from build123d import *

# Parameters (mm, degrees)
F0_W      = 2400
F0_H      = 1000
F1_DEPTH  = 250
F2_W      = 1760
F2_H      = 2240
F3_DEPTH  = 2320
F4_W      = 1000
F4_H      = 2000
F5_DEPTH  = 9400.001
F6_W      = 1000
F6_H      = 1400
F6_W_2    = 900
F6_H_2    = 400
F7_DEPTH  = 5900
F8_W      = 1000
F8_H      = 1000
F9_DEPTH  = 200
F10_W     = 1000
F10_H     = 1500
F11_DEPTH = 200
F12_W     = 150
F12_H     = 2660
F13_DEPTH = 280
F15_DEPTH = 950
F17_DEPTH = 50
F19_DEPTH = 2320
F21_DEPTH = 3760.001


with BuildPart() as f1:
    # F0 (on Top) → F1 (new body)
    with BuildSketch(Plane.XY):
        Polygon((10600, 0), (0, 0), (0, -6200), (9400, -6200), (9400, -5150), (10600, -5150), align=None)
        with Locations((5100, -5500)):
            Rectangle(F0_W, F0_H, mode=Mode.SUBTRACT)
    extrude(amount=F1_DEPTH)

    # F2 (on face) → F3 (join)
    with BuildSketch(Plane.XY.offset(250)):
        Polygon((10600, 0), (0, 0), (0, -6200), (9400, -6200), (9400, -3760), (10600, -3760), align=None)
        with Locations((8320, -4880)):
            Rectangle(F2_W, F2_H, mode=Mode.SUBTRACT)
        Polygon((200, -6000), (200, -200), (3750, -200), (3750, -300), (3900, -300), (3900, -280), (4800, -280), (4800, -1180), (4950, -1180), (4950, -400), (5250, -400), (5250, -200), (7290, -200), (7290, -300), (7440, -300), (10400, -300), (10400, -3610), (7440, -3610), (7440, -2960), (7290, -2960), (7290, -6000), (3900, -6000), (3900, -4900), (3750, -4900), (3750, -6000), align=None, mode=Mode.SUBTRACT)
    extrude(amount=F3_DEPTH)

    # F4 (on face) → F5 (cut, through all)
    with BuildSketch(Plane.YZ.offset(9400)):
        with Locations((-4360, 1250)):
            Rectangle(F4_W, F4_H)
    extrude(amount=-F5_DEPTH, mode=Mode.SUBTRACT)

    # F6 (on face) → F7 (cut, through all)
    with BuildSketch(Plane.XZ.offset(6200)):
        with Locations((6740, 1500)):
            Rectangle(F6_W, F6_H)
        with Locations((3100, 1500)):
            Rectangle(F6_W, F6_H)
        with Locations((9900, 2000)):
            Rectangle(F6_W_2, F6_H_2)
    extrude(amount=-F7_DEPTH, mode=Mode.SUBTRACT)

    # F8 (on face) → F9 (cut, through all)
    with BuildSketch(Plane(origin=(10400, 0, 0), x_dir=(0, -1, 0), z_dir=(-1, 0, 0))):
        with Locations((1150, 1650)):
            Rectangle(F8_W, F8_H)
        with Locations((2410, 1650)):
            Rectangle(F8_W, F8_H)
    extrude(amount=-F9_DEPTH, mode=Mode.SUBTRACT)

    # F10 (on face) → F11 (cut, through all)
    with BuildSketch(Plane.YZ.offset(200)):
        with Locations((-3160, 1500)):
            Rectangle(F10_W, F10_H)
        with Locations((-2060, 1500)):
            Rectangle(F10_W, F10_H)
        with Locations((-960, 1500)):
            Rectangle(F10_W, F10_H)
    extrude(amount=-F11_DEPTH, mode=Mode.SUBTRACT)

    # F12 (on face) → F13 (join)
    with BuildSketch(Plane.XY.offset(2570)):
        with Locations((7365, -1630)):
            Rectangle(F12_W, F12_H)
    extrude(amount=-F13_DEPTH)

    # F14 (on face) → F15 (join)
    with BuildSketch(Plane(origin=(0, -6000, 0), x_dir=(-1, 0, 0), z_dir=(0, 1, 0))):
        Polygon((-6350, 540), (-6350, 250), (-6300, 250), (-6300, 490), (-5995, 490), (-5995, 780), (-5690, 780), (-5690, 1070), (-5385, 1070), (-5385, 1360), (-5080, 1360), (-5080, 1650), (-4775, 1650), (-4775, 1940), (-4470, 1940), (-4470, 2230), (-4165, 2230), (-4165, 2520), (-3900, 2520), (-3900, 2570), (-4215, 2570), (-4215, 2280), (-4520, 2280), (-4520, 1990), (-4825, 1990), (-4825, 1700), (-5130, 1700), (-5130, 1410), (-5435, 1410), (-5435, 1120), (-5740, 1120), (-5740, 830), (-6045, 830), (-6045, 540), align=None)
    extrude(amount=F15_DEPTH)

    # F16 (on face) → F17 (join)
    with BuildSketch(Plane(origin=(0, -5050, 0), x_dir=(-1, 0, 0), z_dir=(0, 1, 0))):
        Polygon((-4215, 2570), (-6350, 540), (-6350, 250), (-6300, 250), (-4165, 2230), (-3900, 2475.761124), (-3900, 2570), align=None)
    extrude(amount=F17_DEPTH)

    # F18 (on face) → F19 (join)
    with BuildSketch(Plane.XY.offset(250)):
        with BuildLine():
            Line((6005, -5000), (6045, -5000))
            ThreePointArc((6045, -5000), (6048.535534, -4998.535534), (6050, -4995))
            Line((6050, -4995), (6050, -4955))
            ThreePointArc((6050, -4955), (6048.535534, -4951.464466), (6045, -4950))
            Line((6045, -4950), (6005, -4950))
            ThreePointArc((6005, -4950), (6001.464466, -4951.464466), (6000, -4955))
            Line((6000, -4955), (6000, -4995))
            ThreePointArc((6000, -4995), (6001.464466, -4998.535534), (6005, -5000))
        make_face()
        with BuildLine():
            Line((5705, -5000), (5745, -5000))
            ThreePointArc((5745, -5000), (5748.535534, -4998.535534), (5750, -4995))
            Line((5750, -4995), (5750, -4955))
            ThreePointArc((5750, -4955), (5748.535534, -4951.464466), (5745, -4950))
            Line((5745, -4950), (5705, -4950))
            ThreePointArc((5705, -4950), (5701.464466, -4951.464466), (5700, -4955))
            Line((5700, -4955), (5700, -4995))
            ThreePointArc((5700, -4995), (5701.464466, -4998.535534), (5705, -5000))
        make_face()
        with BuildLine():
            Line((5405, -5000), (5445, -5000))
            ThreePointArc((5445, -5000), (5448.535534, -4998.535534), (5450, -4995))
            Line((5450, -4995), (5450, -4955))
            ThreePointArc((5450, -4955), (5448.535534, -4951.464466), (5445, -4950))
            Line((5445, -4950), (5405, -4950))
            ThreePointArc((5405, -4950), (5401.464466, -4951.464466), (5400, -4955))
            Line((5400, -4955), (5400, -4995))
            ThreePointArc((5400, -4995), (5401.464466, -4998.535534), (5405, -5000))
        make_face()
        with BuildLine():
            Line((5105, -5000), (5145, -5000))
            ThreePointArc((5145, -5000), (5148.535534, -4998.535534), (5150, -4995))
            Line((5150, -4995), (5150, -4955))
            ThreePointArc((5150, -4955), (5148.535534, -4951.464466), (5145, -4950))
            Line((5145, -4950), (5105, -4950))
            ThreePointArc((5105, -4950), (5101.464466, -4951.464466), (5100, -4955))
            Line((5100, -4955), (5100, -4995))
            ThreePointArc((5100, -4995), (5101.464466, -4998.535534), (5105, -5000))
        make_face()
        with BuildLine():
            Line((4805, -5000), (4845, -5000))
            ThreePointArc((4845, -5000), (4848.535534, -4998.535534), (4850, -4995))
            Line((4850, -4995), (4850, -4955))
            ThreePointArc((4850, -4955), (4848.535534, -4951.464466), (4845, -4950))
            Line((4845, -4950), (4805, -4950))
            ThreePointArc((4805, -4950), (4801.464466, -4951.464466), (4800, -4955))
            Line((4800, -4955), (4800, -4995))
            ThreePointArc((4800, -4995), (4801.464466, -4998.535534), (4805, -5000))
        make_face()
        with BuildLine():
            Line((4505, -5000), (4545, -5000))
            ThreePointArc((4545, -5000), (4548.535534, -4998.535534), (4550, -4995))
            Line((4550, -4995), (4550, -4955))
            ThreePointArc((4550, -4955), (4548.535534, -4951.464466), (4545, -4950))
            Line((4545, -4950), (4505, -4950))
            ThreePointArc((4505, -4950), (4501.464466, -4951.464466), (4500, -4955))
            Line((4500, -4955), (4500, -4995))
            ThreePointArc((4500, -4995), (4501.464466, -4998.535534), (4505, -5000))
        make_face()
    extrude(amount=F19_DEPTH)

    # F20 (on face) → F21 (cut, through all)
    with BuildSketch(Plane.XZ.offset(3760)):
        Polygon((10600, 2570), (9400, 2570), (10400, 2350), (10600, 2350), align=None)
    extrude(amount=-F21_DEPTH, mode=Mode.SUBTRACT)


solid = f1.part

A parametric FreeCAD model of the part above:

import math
import FreeCAD as App
import Part
import Sketcher

V = App.Vector
Q = App.Units.Quantity


def add_polygon(sketch, points):
    """Adds a closed chain of lines whose ends are joined by coincident constraints."""
    first, n = sketch.GeometryCount, len(points)
    for a, b in zip(points, points[1:] + points[:1]):
        sketch.addGeometry(Part.LineSegment(App.Vector(*a, 0), App.Vector(*b, 0)), False)
    for i in range(n):
        sketch.addConstraint(Sketcher.Constraint("Coincident", first + i, 2, first + (i + 1) % n, 1))

doc = App.newDocument("Part")
body = doc.addObject("PartDesign::Body", "Body")

# Sketch on XY plane
sketch1 = doc.addObject("Sketcher::SketchObject", "Sketch")
body.addObject(sketch1)
sketch1.AttachmentSupport = (doc.XY_Plane, [""])
sketch1.MapMode = "FlatFace"
add_polygon(sketch1, [(10600, 0), (0, 0), (0, -6200), (9400, -6200), (9400, -5150), (10600, -5150)])  # lines 0-5
add_polygon(sketch1, [(6300, -6000), (3900, -6000), (3900, -5000), (6300, -5000)])  # lines 6-9
sketch1.addConstraint(Sketcher.Constraint("Horizontal", 0))
sketch1.addConstraint(Sketcher.Constraint("Vertical", 1))
sketch1.addConstraint(Sketcher.Constraint("Horizontal", 2))
sketch1.addConstraint(Sketcher.Constraint("Vertical", 3))
sketch1.addConstraint(Sketcher.Constraint("Horizontal", 4))
sketch1.addConstraint(Sketcher.Constraint("Vertical", 5))
sketch1.addConstraint(Sketcher.Constraint("Horizontal", 6))
sketch1.addConstraint(Sketcher.Constraint("Vertical", 7))
sketch1.addConstraint(Sketcher.Constraint("Horizontal", 8))
sketch1.addConstraint(Sketcher.Constraint("Vertical", 9))
sketch1.addConstraint(Sketcher.Constraint("Coincident", 0, 2, -1, 1))
sketch1.addConstraint(Sketcher.Constraint("DistanceX", 0, 2, 0, 1, Q("10600 mm")))
sketch1.addConstraint(Sketcher.Constraint("DistanceX", 2, 1, 2, 2, Q("9400 mm")))
sketch1.addConstraint(Sketcher.Constraint("DistanceX", 6, 2, 6, 1, Q("2400 mm")))
sketch1.addConstraint(Sketcher.Constraint("DistanceY", 1, 2, 1, 1, Q("6200 mm")))
sketch1.addConstraint(Sketcher.Constraint("DistanceY", 3, 1, 3, 2, Q("1050 mm")))
sketch1.addConstraint(Sketcher.Constraint("DistanceY", 7, 1, 7, 2, Q("1000 mm")))
sketch1.addConstraint(Sketcher.Constraint("DistanceX", -1, 1, 6, 2, Q("3900 mm")))
sketch1.addConstraint(Sketcher.Constraint("DistanceY", 6, 2, -1, 1, Q("6000 mm")))
pad1 = doc.addObject("PartDesign::Pad", "Pad")
body.addObject(pad1)
pad1.Profile = sketch1
pad1.Length = 250

# Sketch on XY plane
sketch2 = doc.addObject("Sketcher::SketchObject", "Sketch001")
body.addObject(sketch2)
sketch2.AttachmentSupport = (doc.XY_Plane, [""])
sketch2.MapMode = "FlatFace"
sketch2.AttachmentOffset = App.Placement(V(0, 0, 250), App.Rotation())
add_polygon(sketch2, [(10600, 0), (0, 0), (0, -6200), (9400, -6200), (9400, -3760), (10600, -3760)])  # lines 0-5
add_polygon(sketch2, [(9200, -6000), (7440, -6000), (7440, -3760), (9200, -3760)])  # lines 6-9
add_polygon(sketch2, [(3750, -6000), (200, -6000), (200, -200), (3750, -200), (3750, -300), (3900, -300), (3900, -280), (4800, -280), (4800, -1180), (4950, -1180), (4950, -400), (5250, -400), (5250, -200), (7290, -200), (7290, -300), (10400, -300), (10400, -3610), (7440, -3610), (7440, -2960), (7290, -2960), (7290, -6000), (3900, -6000), (3900, -4900), (3750, -4900)])  # lines 10-33
sketch2.addConstraint(Sketcher.Constraint("Horizontal", 0))
sketch2.addConstraint(Sketcher.Constraint("Vertical", 1))
sketch2.addConstraint(Sketcher.Constraint("Horizontal", 2))
sketch2.addConstraint(Sketcher.Constraint("Vertical", 3))
sketch2.addConstraint(Sketcher.Constraint("Horizontal", 4))
sketch2.addConstraint(Sketcher.Constraint("Vertical", 5))
sketch2.addConstraint(Sketcher.Constraint("Horizontal", 6))
sketch2.addConstraint(Sketcher.Constraint("Vertical", 7))
sketch2.addConstraint(Sketcher.Constraint("Horizontal", 8))
sketch2.addConstraint(Sketcher.Constraint("Vertical", 9))
sketch2.addConstraint(Sketcher.Constraint("Horizontal", 10))
sketch2.addConstraint(Sketcher.Constraint("Vertical", 11))
sketch2.addConstraint(Sketcher.Constraint("Horizontal", 12))
sketch2.addConstraint(Sketcher.Constraint("Vertical", 13))
sketch2.addConstraint(Sketcher.Constraint("Horizontal", 14))
sketch2.addConstraint(Sketcher.Constraint("Vertical", 15))
sketch2.addConstraint(Sketcher.Constraint("Horizontal", 16))
sketch2.addConstraint(Sketcher.Constraint("Vertical", 17))
sketch2.addConstraint(Sketcher.Constraint("Horizontal", 18))
sketch2.addConstraint(Sketcher.Constraint("Vertical", 19))
sketch2.addConstraint(Sketcher.Constraint("Horizontal", 20))
sketch2.addConstraint(Sketcher.Constraint("Vertical", 21))
sketch2.addConstraint(Sketcher.Constraint("Horizontal", 22))
sketch2.addConstraint(Sketcher.Constraint("Vertical", 23))
sketch2.addConstraint(Sketcher.Constraint("Horizontal", 24))
sketch2.addConstraint(Sketcher.Constraint("Vertical", 25))
sketch2.addConstraint(Sketcher.Constraint("Horizontal", 26))
sketch2.addConstraint(Sketcher.Constraint("Vertical", 27))
sketch2.addConstraint(Sketcher.Constraint("Horizontal", 28))
sketch2.addConstraint(Sketcher.Constraint("Vertical", 29))
sketch2.addConstraint(Sketcher.Constraint("Horizontal", 30))
sketch2.addConstraint(Sketcher.Constraint("Vertical", 31))
sketch2.addConstraint(Sketcher.Constraint("Horizontal", 32))
sketch2.addConstraint(Sketcher.Constraint("Vertical", 33))
sketch2.addConstraint(Sketcher.Constraint("Coincident", 0, 2, -1, 1))
sketch2.addConstraint(Sketcher.Constraint("Horizontal", 4, 2, 7, 2))
sketch2.addConstraint(Sketcher.Constraint("Horizontal", 9, 2, 10, 2))
sketch2.addConstraint(Sketcher.Constraint("Horizontal", 12, 2, 21, 2))
sketch2.addConstraint(Sketcher.Constraint("Horizontal", 14, 2, 23, 2))
sketch2.addConstraint(Sketcher.Constraint("Horizontal", 10, 2, 29, 2))
sketch2.addConstraint(Sketcher.Constraint("Vertical", 7, 2, 26, 2))
sketch2.addConstraint(Sketcher.Constraint("Vertical", 23, 2, 28, 2))
sketch2.addConstraint(Sketcher.Constraint("Vertical", 15, 2, 30, 2))
sketch2.addConstraint(Sketcher.Constraint("Vertical", 13, 2, 32, 2))
sketch2.addConstraint(Sketcher.Constraint("Equal", 14, 18))
sketch2.addConstraint(Sketcher.Constraint("Equal", 18, 28))
sketch2.addConstraint(Sketcher.Constraint("Equal", 16, 17))
sketch2.addConstraint(Sketcher.Constraint("DistanceX", 0, 2, 0, 1, Q("10600 mm")))
sketch2.addConstraint(Sketcher.Constraint("DistanceX", 2, 1, 2, 2, Q("9400 mm")))
sketch2.addConstraint(Sketcher.Constraint("DistanceX", 6, 2, 6, 1, Q("1760 mm")))
sketch2.addConstraint(Sketcher.Constraint("DistanceX", 10, 2, 10, 1, Q("3550 mm")))
sketch2.addConstraint(Sketcher.Constraint("DistanceX", 14, 1, 14, 2, Q("150 mm")))
sketch2.addConstraint(Sketcher.Constraint("DistanceX", 16, 1, 16, 2, Q("900 mm")))
sketch2.addConstraint(Sketcher.Constraint("DistanceX", 20, 1, 20, 2, Q("300 mm")))
sketch2.addConstraint(Sketcher.Constraint("DistanceX", 22, 1, 22, 2, Q("2040 mm")))
sketch2.addConstraint(Sketcher.Constraint("DistanceX", 24, 1, 24, 2, Q("3110 mm")))
sketch2.addConstraint(Sketcher.Constraint("DistanceY", 1, 2, 1, 1, Q("6200 mm")))
sketch2.addConstraint(Sketcher.Constraint("DistanceY", 3, 1, 3, 2, Q("2440 mm")))
sketch2.addConstraint(Sketcher.Constraint("DistanceY", 7, 1, 7, 2, Q("2240 mm")))
sketch2.addConstraint(Sketcher.Constraint("DistanceY", 11, 1, 11, 2, Q("5800 mm")))
sketch2.addConstraint(Sketcher.Constraint("DistanceY", 13, 2, 13, 1, Q("100 mm")))
sketch2.addConstraint(Sketcher.Constraint("DistanceY", 15, 1, 15, 2, Q("20 mm")))
sketch2.addConstraint(Sketcher.Constraint("DistanceY", 19, 1, 19, 2, Q("780 mm")))
sketch2.addConstraint(Sketcher.Constraint("DistanceY", 25, 2, 25, 1, Q("3310 mm")))
sketch2.addConstraint(Sketcher.Constraint("DistanceY", 27, 1, 27, 2, Q("650 mm")))
sketch2.addConstraint(Sketcher.Constraint("DistanceY", 31, 1, 31, 2, Q("1100 mm")))
sketch2.addConstraint(Sketcher.Constraint("DistanceX", -1, 1, 6, 2, Q("7440 mm")))
pad2 = doc.addObject("PartDesign::Pad", "Pad001")
body.addObject(pad2)
pad2.Profile = sketch2
pad2.Length = 2320

# Sketch on YZ plane
sketch3 = doc.addObject("Sketcher::SketchObject", "Sketch002")
body.addObject(sketch3)
sketch3.AttachmentSupport = (doc.YZ_Plane, [""])
sketch3.MapMode = "FlatFace"
sketch3.AttachmentOffset = App.Placement(V(0, 0, 9400), App.Rotation())
add_polygon(sketch3, [(-4860, 2250), (-4860, 250), (-3860, 250), (-3860, 2250)])  # lines 0-3
sketch3.addConstraint(Sketcher.Constraint("Vertical", 0))
sketch3.addConstraint(Sketcher.Constraint("Horizontal", 1))
sketch3.addConstraint(Sketcher.Constraint("Vertical", 2))
sketch3.addConstraint(Sketcher.Constraint("Horizontal", 3))
sketch3.addConstraint(Sketcher.Constraint("DistanceX", 1, 1, 1, 2, Q("1000 mm")))
sketch3.addConstraint(Sketcher.Constraint("DistanceY", 0, 2, 0, 1, Q("2000 mm")))
sketch3.addConstraint(Sketcher.Constraint("DistanceX", 0, 2, -1, 1, Q("4860 mm")))
sketch3.addConstraint(Sketcher.Constraint("DistanceY", -1, 1, 0, 2, Q("250 mm")))
pocket1 = doc.addObject("PartDesign::Pocket", "Pocket")
body.addObject(pocket1)
pocket1.Profile = sketch3
pocket1.Type = "ThroughAll"

# Sketch on XZ plane
sketch4 = doc.addObject("Sketcher::SketchObject", "Sketch003")
body.addObject(sketch4)
sketch4.AttachmentSupport = (doc.XZ_Plane, [""])
sketch4.MapMode = "FlatFace"
sketch4.AttachmentOffset = App.Placement(V(0, 0, 6200), App.Rotation())
add_polygon(sketch4, [(6240, 2200), (6240, 800), (7240, 800), (7240, 2200)])  # lines 0-3
add_polygon(sketch4, [(2600, 2200), (2600, 800), (3600, 800), (3600, 2200)])  # lines 4-7
add_polygon(sketch4, [(9450, 2200), (9450, 1800), (10350, 1800), (10350, 2200)])  # lines 8-11
sketch4.addConstraint(Sketcher.Constraint("Vertical", 0))
sketch4.addConstraint(Sketcher.Constraint("Horizontal", 1))
sketch4.addConstraint(Sketcher.Constraint("Vertical", 2))
sketch4.addConstraint(Sketcher.Constraint("Horizontal", 3))
sketch4.addConstraint(Sketcher.Constraint("Vertical", 4))
sketch4.addConstraint(Sketcher.Constraint("Horizontal", 5))
sketch4.addConstraint(Sketcher.Constraint("Vertical", 6))
sketch4.addConstraint(Sketcher.Constraint("Horizontal", 7))
sketch4.addConstraint(Sketcher.Constraint("Vertical", 8))
sketch4.addConstraint(Sketcher.Constraint("Horizontal", 9))
sketch4.addConstraint(Sketcher.Constraint("Vertical", 10))
sketch4.addConstraint(Sketcher.Constraint("Horizontal", 11))
sketch4.addConstraint(Sketcher.Constraint("Horizontal", 1, 2, 4, 2))
sketch4.addConstraint(Sketcher.Constraint("Horizontal", 3, 2, 6, 2))
sketch4.addConstraint(Sketcher.Constraint("Horizontal", 7, 2, 10, 2))
sketch4.addConstraint(Sketcher.Constraint("Equal", 3, 5))
sketch4.addConstraint(Sketcher.Constraint("DistanceX", 1, 1, 1, 2, Q("1000 mm")))
sketch4.addConstraint(Sketcher.Constraint("DistanceX", 9, 1, 9, 2, Q("900 mm")))
sketch4.addConstraint(Sketcher.Constraint("DistanceY", 0, 2, 0, 1, Q("1400 mm")))
sketch4.addConstraint(Sketcher.Constraint("DistanceY", 8, 2, 8, 1, Q("400 mm")))
sketch4.addConstraint(Sketcher.Constraint("DistanceX", -1, 1, 0, 2, Q("6240 mm")))
sketch4.addConstraint(Sketcher.Constraint("DistanceY", -1, 1, 0, 2, Q("800 mm")))
sketch4.addConstraint(Sketcher.Constraint("DistanceX", -1, 1, 4, 2, Q("2600 mm")))
sketch4.addConstraint(Sketcher.Constraint("DistanceX", -1, 1, 8, 2, Q("9450 mm")))
pocket2 = doc.addObject("PartDesign::Pocket", "Pocket001")
body.addObject(pocket2)
pocket2.Profile = sketch4
pocket2.Length = 5900

# Sketch on YZ plane
sketch5 = doc.addObject("Sketcher::SketchObject", "Sketch004")
body.addObject(sketch5)
sketch5.AttachmentSupport = (doc.YZ_Plane, [""])
sketch5.MapMode = "FlatFace"
sketch5.AttachmentOffset = App.Placement(V(0, 0, 10400), App.Rotation())
add_polygon(sketch5, [(-650, 2150), (-650, 1150), (-1650, 1150), (-1650, 2150)])  # lines 0-3
add_polygon(sketch5, [(-1910, 2150), (-1910, 1150), (-2910, 1150), (-2910, 2150)])  # lines 4-7
sketch5.addConstraint(Sketcher.Constraint("Vertical", 0))
sketch5.addConstraint(Sketcher.Constraint("Horizontal", 1))
sketch5.addConstraint(Sketcher.Constraint("Vertical", 2))
sketch5.addConstraint(Sketcher.Constraint("Horizontal", 3))
sketch5.addConstraint(Sketcher.Constraint("Vertical", 4))
sketch5.addConstraint(Sketcher.Constraint("Horizontal", 5))
sketch5.addConstraint(Sketcher.Constraint("Vertical", 6))
sketch5.addConstraint(Sketcher.Constraint("Horizontal", 7))
sketch5.addConstraint(Sketcher.Constraint("Horizontal", 1, 2, 4, 2))
sketch5.addConstraint(Sketcher.Constraint("Horizontal", 3, 2, 6, 2))
sketch5.addConstraint(Sketcher.Constraint("Equal", 3, 5))
sketch5.addConstraint(Sketcher.Constraint("Equal", 7, 0))
sketch5.addConstraint(Sketcher.Constraint("DistanceX", 1, 2, 1, 1, Q("1000 mm")))
sketch5.addConstraint(Sketcher.Constraint("DistanceX", 0, 2, -1, 1, Q("650 mm")))
sketch5.addConstraint(Sketcher.Constraint("DistanceY", -1, 1, 0, 2, Q("1150 mm")))
sketch5.addConstraint(Sketcher.Constraint("DistanceX", 4, 2, -1, 1, Q("1910 mm")))
pocket3 = doc.addObject("PartDesign::Pocket", "Pocket002")
body.addObject(pocket3)
pocket3.Profile = sketch5
pocket3.Type = "ThroughAll"
pocket3.Reversed = True

# Sketch on YZ plane
sketch6 = doc.addObject("Sketcher::SketchObject", "Sketch005")
body.addObject(sketch6)
sketch6.AttachmentSupport = (doc.YZ_Plane, [""])
sketch6.MapMode = "FlatFace"
sketch6.AttachmentOffset = App.Placement(V(0, 0, 200), App.Rotation())
add_polygon(sketch6, [(-3660, 2250), (-3660, 750), (-2660, 750), (-2660, 2250)])  # lines 0-3
add_polygon(sketch6, [(-2560, 2250), (-2560, 750), (-1560, 750), (-1560, 2250)])  # lines 4-7
add_polygon(sketch6, [(-1460, 2250), (-1460, 750), (-460, 750), (-460, 2250)])  # lines 8-11
sketch6.addConstraint(Sketcher.Constraint("Vertical", 0))
sketch6.addConstraint(Sketcher.Constraint("Horizontal", 1))
sketch6.addConstraint(Sketcher.Constraint("Vertical", 2))
sketch6.addConstraint(Sketcher.Constraint("Horizontal", 3))
sketch6.addConstraint(Sketcher.Constraint("Vertical", 4))
sketch6.addConstraint(Sketcher.Constraint("Horizontal", 5))
sketch6.addConstraint(Sketcher.Constraint("Vertical", 6))
sketch6.addConstraint(Sketcher.Constraint("Horizontal", 7))
sketch6.addConstraint(Sketcher.Constraint("Vertical", 8))
sketch6.addConstraint(Sketcher.Constraint("Horizontal", 9))
sketch6.addConstraint(Sketcher.Constraint("Vertical", 10))
sketch6.addConstraint(Sketcher.Constraint("Horizontal", 11))
sketch6.addConstraint(Sketcher.Constraint("Horizontal", 1, 2, 4, 2))
sketch6.addConstraint(Sketcher.Constraint("Horizontal", 3, 2, 6, 2))
sketch6.addConstraint(Sketcher.Constraint("Horizontal", 5, 2, 8, 2))
sketch6.addConstraint(Sketcher.Constraint("Horizontal", 7, 2, 10, 2))
sketch6.addConstraint(Sketcher.Constraint("Equal", 3, 5))
sketch6.addConstraint(Sketcher.Constraint("Equal", 7, 9))
sketch6.addConstraint(Sketcher.Constraint("DistanceX", 1, 1, 1, 2, Q("1000 mm")))
sketch6.addConstraint(Sketcher.Constraint("DistanceY", 0, 2, 0, 1, Q("1500 mm")))
sketch6.addConstraint(Sketcher.Constraint("DistanceX", 0, 2, -1, 1, Q("3660 mm")))
sketch6.addConstraint(Sketcher.Constraint("DistanceY", -1, 1, 0, 2, Q("750 mm")))
sketch6.addConstraint(Sketcher.Constraint("DistanceX", 4, 2, -1, 1, Q("2560 mm")))
sketch6.addConstraint(Sketcher.Constraint("DistanceX", 8, 2, -1, 1, Q("1460 mm")))
pocket4 = doc.addObject("PartDesign::Pocket", "Pocket003")
body.addObject(pocket4)
pocket4.Profile = sketch6
pocket4.Type = "ThroughAll"

# Sketch on XY plane
sketch7 = doc.addObject("Sketcher::SketchObject", "Sketch006")
body.addObject(sketch7)
sketch7.AttachmentSupport = (doc.XY_Plane, [""])
sketch7.MapMode = "FlatFace"
sketch7.AttachmentOffset = App.Placement(V(0, 0, 2570), App.Rotation())
add_polygon(sketch7, [(7290, -300), (7290, -2960), (7440, -2960), (7440, -300)])  # lines 0-3
sketch7.addConstraint(Sketcher.Constraint("Vertical", 0))
sketch7.addConstraint(Sketcher.Constraint("Horizontal", 1))
sketch7.addConstraint(Sketcher.Constraint("Vertical", 2))
sketch7.addConstraint(Sketcher.Constraint("Horizontal", 3))
sketch7.addConstraint(Sketcher.Constraint("DistanceX", 1, 1, 1, 2, Q("150 mm")))
sketch7.addConstraint(Sketcher.Constraint("DistanceY", 0, 2, 0, 1, Q("2660 mm")))
sketch7.addConstraint(Sketcher.Constraint("DistanceX", -1, 1, 0, 2, Q("7290 mm")))
sketch7.addConstraint(Sketcher.Constraint("DistanceY", 0, 2, -1, 1, Q("2960 mm")))
pad3 = doc.addObject("PartDesign::Pad", "Pad002")
body.addObject(pad3)
pad3.Profile = sketch7
pad3.Length = 280
pad3.Reversed = True

# Sketch on XZ plane
sketch8 = doc.addObject("Sketcher::SketchObject", "Sketch007")
body.addObject(sketch8)
sketch8.AttachmentSupport = (doc.XZ_Plane, [""])
sketch8.MapMode = "FlatFace"
sketch8.AttachmentOffset = App.Placement(V(0, 0, 6000), App.Rotation())
add_polygon(sketch8, [(6350, 540), (6350, 250), (6300, 250), (6300, 490), (5995, 490), (5995, 780), (5690, 780), (5690, 1070), (5385, 1070), (5385, 1360), (5080, 1360), (5080, 1650), (4775, 1650), (4775, 1940), (4470, 1940), (4470, 2230), (4165, 2230), (4165, 2520), (3900, 2520), (3900, 2570), (4215, 2570), (4215, 2280), (4520, 2280), (4520, 1990), (4825, 1990), (4825, 1700), (5130, 1700), (5130, 1410), (5435, 1410), (5435, 1120), (5740, 1120), (5740, 830), (6045, 830), (6045, 540)])  # lines 0-33
sketch8.addConstraint(Sketcher.Constraint("Vertical", 0))
sketch8.addConstraint(Sketcher.Constraint("Horizontal", 1))
sketch8.addConstraint(Sketcher.Constraint("Vertical", 2))
sketch8.addConstraint(Sketcher.Constraint("Horizontal", 3))
sketch8.addConstraint(Sketcher.Constraint("Vertical", 4))
sketch8.addConstraint(Sketcher.Constraint("Horizontal", 5))
sketch8.addConstraint(Sketcher.Constraint("Vertical", 6))
sketch8.addConstraint(Sketcher.Constraint("Horizontal", 7))
sketch8.addConstraint(Sketcher.Constraint("Vertical", 8))
sketch8.addConstraint(Sketcher.Constraint("Horizontal", 9))
sketch8.addConstraint(Sketcher.Constraint("Vertical", 10))
sketch8.addConstraint(Sketcher.Constraint("Horizontal", 11))
sketch8.addConstraint(Sketcher.Constraint("Vertical", 12))
sketch8.addConstraint(Sketcher.Constraint("Horizontal", 13))
sketch8.addConstraint(Sketcher.Constraint("Vertical", 14))
sketch8.addConstraint(Sketcher.Constraint("Horizontal", 15))
sketch8.addConstraint(Sketcher.Constraint("Vertical", 16))
sketch8.addConstraint(Sketcher.Constraint("Horizontal", 17))
sketch8.addConstraint(Sketcher.Constraint("Vertical", 18))
sketch8.addConstraint(Sketcher.Constraint("Horizontal", 19))
sketch8.addConstraint(Sketcher.Constraint("Vertical", 20))
sketch8.addConstraint(Sketcher.Constraint("Horizontal", 21))
sketch8.addConstraint(Sketcher.Constraint("Vertical", 22))
sketch8.addConstraint(Sketcher.Constraint("Horizontal", 23))
sketch8.addConstraint(Sketcher.Constraint("Vertical", 24))
sketch8.addConstraint(Sketcher.Constraint("Horizontal", 25))
sketch8.addConstraint(Sketcher.Constraint("Vertical", 26))
sketch8.addConstraint(Sketcher.Constraint("Horizontal", 27))
sketch8.addConstraint(Sketcher.Constraint("Vertical", 28))
sketch8.addConstraint(Sketcher.Constraint("Horizontal", 29))
sketch8.addConstraint(Sketcher.Constraint("Vertical", 30))
sketch8.addConstraint(Sketcher.Constraint("Horizontal", 31))
sketch8.addConstraint(Sketcher.Constraint("Vertical", 32))
sketch8.addConstraint(Sketcher.Constraint("Horizontal", 33))
sketch8.addConstraint(Sketcher.Constraint("Equal", 3, 5))
sketch8.addConstraint(Sketcher.Constraint("Equal", 5, 7))
sketch8.addConstraint(Sketcher.Constraint("Equal", 7, 9))
sketch8.addConstraint(Sketcher.Constraint("Equal", 9, 11))
sketch8.addConstraint(Sketcher.Constraint("Equal", 11, 13))
sketch8.addConstraint(Sketcher.Constraint("Equal", 13, 15))
sketch8.addConstraint(Sketcher.Constraint("Equal", 15, 21))
sketch8.addConstraint(Sketcher.Constraint("Equal", 21, 23))
sketch8.addConstraint(Sketcher.Constraint("Equal", 23, 25))
sketch8.addConstraint(Sketcher.Constraint("Equal", 25, 27))
sketch8.addConstraint(Sketcher.Constraint("Equal", 27, 29))
sketch8.addConstraint(Sketcher.Constraint("Equal", 29, 31))
sketch8.addConstraint(Sketcher.Constraint("Equal", 31, 33))
sketch8.addConstraint(Sketcher.Constraint("Equal", 0, 4))
sketch8.addConstraint(Sketcher.Constraint("Equal", 4, 6))
sketch8.addConstraint(Sketcher.Constraint("Equal", 6, 8))
sketch8.addConstraint(Sketcher.Constraint("Equal", 8, 10))
sketch8.addConstraint(Sketcher.Constraint("Equal", 10, 12))
sketch8.addConstraint(Sketcher.Constraint("Equal", 12, 14))
sketch8.addConstraint(Sketcher.Constraint("Equal", 14, 16))
sketch8.addConstraint(Sketcher.Constraint("Equal", 1, 18))
sketch8.addConstraint(Sketcher.Constraint("Equal", 16, 20))
sketch8.addConstraint(Sketcher.Constraint("Equal", 20, 22))
sketch8.addConstraint(Sketcher.Constraint("Equal", 22, 24))
sketch8.addConstraint(Sketcher.Constraint("Equal", 24, 26))
sketch8.addConstraint(Sketcher.Constraint("Equal", 26, 28))
sketch8.addConstraint(Sketcher.Constraint("Equal", 28, 30))
sketch8.addConstraint(Sketcher.Constraint("Equal", 30, 32))
sketch8.addConstraint(Sketcher.Constraint("DistanceX", 1, 2, 1, 1, Q("50 mm")))
sketch8.addConstraint(Sketcher.Constraint("DistanceX", 3, 2, 3, 1, Q("305 mm")))
sketch8.addConstraint(Sketcher.Constraint("DistanceX", 17, 2, 17, 1, Q("265 mm")))
sketch8.addConstraint(Sketcher.Constraint("DistanceY", 0, 2, 0, 1, Q("290 mm")))
sketch8.addConstraint(Sketcher.Constraint("DistanceX", -1, 1, 0, 2, Q("6350 mm")))
sketch8.addConstraint(Sketcher.Constraint("DistanceY", -1, 1, 0, 2, Q("250 mm")))
pad4 = doc.addObject("PartDesign::Pad", "Pad003")
body.addObject(pad4)
pad4.Profile = sketch8
pad4.Length = 950
pad4.Reversed = True

# Sketch on XZ plane
sketch9 = doc.addObject("Sketcher::SketchObject", "Sketch008")
body.addObject(sketch9)
sketch9.AttachmentSupport = (doc.XZ_Plane, [""])
sketch9.MapMode = "FlatFace"
sketch9.AttachmentOffset = App.Placement(V(0, 0, 5050), App.Rotation())
add_polygon(sketch9, [(4215, 2570), (6350, 540), (6350, 250), (6300, 250), (4165, 2230), (3900, 2475.761124), (3900, 2570)])  # lines 0-6
sketch9.addConstraint(Sketcher.Constraint("Vertical", 1))
sketch9.addConstraint(Sketcher.Constraint("Horizontal", 2))
sketch9.addConstraint(Sketcher.Constraint("Vertical", 5))
sketch9.addConstraint(Sketcher.Constraint("Horizontal", 6))
sketch9.addConstraint(Sketcher.Constraint("Parallel", 3, 4))
sketch9.addConstraint(Sketcher.Constraint("DistanceX", 2, 2, 2, 1, Q("50 mm")))
sketch9.addConstraint(Sketcher.Constraint("DistanceX", 6, 1, 6, 2, Q("315 mm")))
sketch9.addConstraint(Sketcher.Constraint("DistanceY", 1, 2, 1, 1, Q("290 mm")))
sketch9.addConstraint(Sketcher.Constraint("DistanceX", -1, 1, 0, 2, Q("6350 mm")))
sketch9.addConstraint(Sketcher.Constraint("DistanceY", -1, 1, 0, 2, Q("540 mm")))
sketch9.addConstraint(Sketcher.Constraint("DistanceX", -1, 1, 3, 2, Q("4165 mm")))
sketch9.addConstraint(Sketcher.Constraint("DistanceY", -1, 1, 3, 2, Q("2230 mm")))
sketch9.addConstraint(Sketcher.Constraint("DistanceX", -1, 1, 4, 2, Q("3900 mm")))
sketch9.addConstraint(Sketcher.Constraint("DistanceY", -1, 1, 5, 2, Q("2570 mm")))
pad5 = doc.addObject("PartDesign::Pad", "Pad004")
body.addObject(pad5)
pad5.Profile = sketch9
pad5.Length = 50
pad5.Reversed = True

# Sketch on XY plane
sketch10 = doc.addObject("Sketcher::SketchObject", "Sketch009")
body.addObject(sketch10)
sketch10.AttachmentSupport = (doc.XY_Plane, [""])
sketch10.MapMode = "FlatFace"
sketch10.AttachmentOffset = App.Placement(V(0, 0, 250), App.Rotation())
sketch10.addGeometry(Part.LineSegment(V(6005, -5000, 0), V(6045, -5000, 0)), False)
sketch10.addGeometry(Part.ArcOfCircle(Part.Circle(V(6045, -4995, 0), V(0, 0, 1), 5), math.radians(-90.000004), math.radians(0.000004)), False)
sketch10.addGeometry(Part.LineSegment(V(6050, -4995, 0), V(6050, -4955, 0)), False)
sketch10.addGeometry(Part.ArcOfCircle(Part.Circle(V(6045, -4955, 0), V(0, 0, 1), 5), math.radians(-0.000004), math.radians(90.000004)), False)
sketch10.addGeometry(Part.LineSegment(V(6045, -4950, 0), V(6005, -4950, 0)), False)
sketch10.addGeometry(Part.ArcOfCircle(Part.Circle(V(6005, -4955, 0), V(0, 0, 1), 5), math.radians(89.999996), math.radians(180.000004)), False)
sketch10.addGeometry(Part.LineSegment(V(6000, -4955, 0), V(6000, -4995, 0)), False)
sketch10.addGeometry(Part.ArcOfCircle(Part.Circle(V(6005, -4995, 0), V(0, 0, 1), 5), math.radians(179.999996), math.radians(270.000004)), False)
sketch10.addGeometry(Part.LineSegment(V(5705, -5000, 0), V(5745, -5000, 0)), False)
sketch10.addGeometry(Part.ArcOfCircle(Part.Circle(V(5745, -4995, 0), V(0, 0, 1), 5), math.radians(-90.000004), math.radians(0.000004)), False)
sketch10.addGeometry(Part.LineSegment(V(5750, -4995, 0), V(5750, -4955, 0)), False)
sketch10.addGeometry(Part.ArcOfCircle(Part.Circle(V(5745, -4955, 0), V(0, 0, 1), 5), math.radians(-0.000004), math.radians(90.000004)), False)
sketch10.addGeometry(Part.LineSegment(V(5745, -4950, 0), V(5705, -4950, 0)), False)
sketch10.addGeometry(Part.ArcOfCircle(Part.Circle(V(5705, -4955, 0), V(0, 0, 1), 5), math.radians(89.999996), math.radians(180.000004)), False)
sketch10.addGeometry(Part.LineSegment(V(5700, -4955, 0), V(5700, -4995, 0)), False)
sketch10.addGeometry(Part.ArcOfCircle(Part.Circle(V(5705, -4995, 0), V(0, 0, 1), 5), math.radians(179.999996), math.radians(270.000004)), False)
sketch10.addGeometry(Part.LineSegment(V(5405, -5000, 0), V(5445, -5000, 0)), False)
sketch10.addGeometry(Part.ArcOfCircle(Part.Circle(V(5445, -4995, 0), V(0, 0, 1), 5), math.radians(-90.000004), math.radians(0.000004)), False)
sketch10.addGeometry(Part.LineSegment(V(5450, -4995, 0), V(5450, -4955, 0)), False)
sketch10.addGeometry(Part.ArcOfCircle(Part.Circle(V(5445, -4955, 0), V(0, 0, 1), 5), math.radians(-0.000004), math.radians(90.000004)), False)
sketch10.addGeometry(Part.LineSegment(V(5445, -4950, 0), V(5405, -4950, 0)), False)
sketch10.addGeometry(Part.ArcOfCircle(Part.Circle(V(5405, -4955, 0), V(0, 0, 1), 5), math.radians(89.999996), math.radians(180.000004)), False)
sketch10.addGeometry(Part.LineSegment(V(5400, -4955, 0), V(5400, -4995, 0)), False)
sketch10.addGeometry(Part.ArcOfCircle(Part.Circle(V(5405, -4995, 0), V(0, 0, 1), 5), math.radians(179.999996), math.radians(270.000004)), False)
sketch10.addGeometry(Part.LineSegment(V(5105, -5000, 0), V(5145, -5000, 0)), False)
sketch10.addGeometry(Part.ArcOfCircle(Part.Circle(V(5145, -4995, 0), V(0, 0, 1), 5), math.radians(-90.000004), math.radians(0.000004)), False)
sketch10.addGeometry(Part.LineSegment(V(5150, -4995, 0), V(5150, -4955, 0)), False)
sketch10.addGeometry(Part.ArcOfCircle(Part.Circle(V(5145, -4955, 0), V(0, 0, 1), 5), math.radians(-0.000004), math.radians(90.000004)), False)
sketch10.addGeometry(Part.LineSegment(V(5145, -4950, 0), V(5105, -4950, 0)), False)
sketch10.addGeometry(Part.ArcOfCircle(Part.Circle(V(5105, -4955, 0), V(0, 0, 1), 5), math.radians(89.999996), math.radians(180.000004)), False)
sketch10.addGeometry(Part.LineSegment(V(5100, -4955, 0), V(5100, -4995, 0)), False)
sketch10.addGeometry(Part.ArcOfCircle(Part.Circle(V(5105, -4995, 0), V(0, 0, 1), 5), math.radians(179.999996), math.radians(270.000004)), False)
sketch10.addGeometry(Part.LineSegment(V(4805, -5000, 0), V(4845, -5000, 0)), False)
sketch10.addGeometry(Part.ArcOfCircle(Part.Circle(V(4845, -4995, 0), V(0, 0, 1), 5), math.radians(-90.000004), math.radians(0.000004)), False)
sketch10.addGeometry(Part.LineSegment(V(4850, -4995, 0), V(4850, -4955, 0)), False)
sketch10.addGeometry(Part.ArcOfCircle(Part.Circle(V(4845, -4955, 0), V(0, 0, 1), 5), math.radians(-0.000004), math.radians(90.000004)), False)
sketch10.addGeometry(Part.LineSegment(V(4845, -4950, 0), V(4805, -4950, 0)), False)
sketch10.addGeometry(Part.ArcOfCircle(Part.Circle(V(4805, -4955, 0), V(0, 0, 1), 5), math.radians(89.999996), math.radians(180.000004)), False)
sketch10.addGeometry(Part.LineSegment(V(4800, -4955, 0), V(4800, -4995, 0)), False)
sketch10.addGeometry(Part.ArcOfCircle(Part.Circle(V(4805, -4995, 0), V(0, 0, 1), 5), math.radians(179.999996), math.radians(270.000004)), False)
sketch10.addGeometry(Part.LineSegment(V(4505, -5000, 0), V(4545, -5000, 0)), False)
sketch10.addGeometry(Part.ArcOfCircle(Part.Circle(V(4545, -4995, 0), V(0, 0, 1), 5), math.radians(-90.000004), math.radians(0.000004)), False)
sketch10.addGeometry(Part.LineSegment(V(4550, -4995, 0), V(4550, -4955, 0)), False)
sketch10.addGeometry(Part.ArcOfCircle(Part.Circle(V(4545, -4955, 0), V(0, 0, 1), 5), math.radians(-0.000004), math.radians(90.000004)), False)
sketch10.addGeometry(Part.LineSegment(V(4545, -4950, 0), V(4505, -4950, 0)), False)
sketch10.addGeometry(Part.ArcOfCircle(Part.Circle(V(4505, -4955, 0), V(0, 0, 1), 5), math.radians(89.999996), math.radians(180.000004)), False)
sketch10.addGeometry(Part.LineSegment(V(4500, -4955, 0), V(4500, -4995, 0)), False)
sketch10.addGeometry(Part.ArcOfCircle(Part.Circle(V(4505, -4995, 0), V(0, 0, 1), 5), math.radians(179.999996), math.radians(270.000004)), False)
sketch10.addConstraint(Sketcher.Constraint("Tangent", 0, 2, 1, 1))
sketch10.addConstraint(Sketcher.Constraint("Tangent", 1, 2, 2, 1))
sketch10.addConstraint(Sketcher.Constraint("Tangent", 2, 2, 3, 1))
sketch10.addConstraint(Sketcher.Constraint("Tangent", 3, 2, 4, 1))
sketch10.addConstraint(Sketcher.Constraint("Tangent", 4, 2, 5, 1))
sketch10.addConstraint(Sketcher.Constraint("Tangent", 5, 2, 6, 1))
sketch10.addConstraint(Sketcher.Constraint("Tangent", 6, 2, 7, 1))
sketch10.addConstraint(Sketcher.Constraint("Tangent", 7, 2, 0, 1))
sketch10.addConstraint(Sketcher.Constraint("Tangent", 8, 2, 9, 1))
sketch10.addConstraint(Sketcher.Constraint("Tangent", 9, 2, 10, 1))
sketch10.addConstraint(Sketcher.Constraint("Tangent", 10, 2, 11, 1))
sketch10.addConstraint(Sketcher.Constraint("Tangent", 11, 2, 12, 1))
sketch10.addConstraint(Sketcher.Constraint("Tangent", 12, 2, 13, 1))
sketch10.addConstraint(Sketcher.Constraint("Tangent", 13, 2, 14, 1))
sketch10.addConstraint(Sketcher.Constraint("Tangent", 14, 2, 15, 1))
sketch10.addConstraint(Sketcher.Constraint("Tangent", 15, 2, 8, 1))
sketch10.addConstraint(Sketcher.Constraint("Tangent", 16, 2, 17, 1))
sketch10.addConstraint(Sketcher.Constraint("Tangent", 17, 2, 18, 1))
sketch10.addConstraint(Sketcher.Constraint("Tangent", 18, 2, 19, 1))
sketch10.addConstraint(Sketcher.Constraint("Tangent", 19, 2, 20, 1))
sketch10.addConstraint(Sketcher.Constraint("Tangent", 20, 2, 21, 1))
sketch10.addConstraint(Sketcher.Constraint("Tangent", 21, 2, 22, 1))
sketch10.addConstraint(Sketcher.Constraint("Tangent", 22, 2, 23, 1))
sketch10.addConstraint(Sketcher.Constraint("Tangent", 23, 2, 16, 1))
sketch10.addConstraint(Sketcher.Constraint("Tangent", 24, 2, 25, 1))
sketch10.addConstraint(Sketcher.Constraint("Tangent", 25, 2, 26, 1))
sketch10.addConstraint(Sketcher.Constraint("Tangent", 26, 2, 27, 1))
sketch10.addConstraint(Sketcher.Constraint("Tangent", 27, 2, 28, 1))
sketch10.addConstraint(Sketcher.Constraint("Tangent", 28, 2, 29, 1))
sketch10.addConstraint(Sketcher.Constraint("Tangent", 29, 2, 30, 1))
sketch10.addConstraint(Sketcher.Constraint("Tangent", 30, 2, 31, 1))
sketch10.addConstraint(Sketcher.Constraint("Tangent", 31, 2, 24, 1))
sketch10.addConstraint(Sketcher.Constraint("Tangent", 32, 2, 33, 1))
sketch10.addConstraint(Sketcher.Constraint("Tangent", 33, 2, 34, 1))
sketch10.addConstraint(Sketcher.Constraint("Tangent", 34, 2, 35, 1))
sketch10.addConstraint(Sketcher.Constraint("Tangent", 35, 2, 36, 1))
sketch10.addConstraint(Sketcher.Constraint("Tangent", 36, 2, 37, 1))
sketch10.addConstraint(Sketcher.Constraint("Tangent", 37, 2, 38, 1))
sketch10.addConstraint(Sketcher.Constraint("Tangent", 38, 2, 39, 1))
sketch10.addConstraint(Sketcher.Constraint("Tangent", 39, 2, 32, 1))
sketch10.addConstraint(Sketcher.Constraint("Tangent", 40, 2, 41, 1))
sketch10.addConstraint(Sketcher.Constraint("Tangent", 41, 2, 42, 1))
sketch10.addConstraint(Sketcher.Constraint("Tangent", 42, 2, 43, 1))
sketch10.addConstraint(Sketcher.Constraint("Tangent", 43, 2, 44, 1))
sketch10.addConstraint(Sketcher.Constraint("Tangent", 44, 2, 45, 1))
sketch10.addConstraint(Sketcher.Constraint("Tangent", 45, 2, 46, 1))
sketch10.addConstraint(Sketcher.Constraint("Tangent", 46, 2, 47, 1))
sketch10.addConstraint(Sketcher.Constraint("Tangent", 47, 2, 40, 1))
sketch10.addConstraint(Sketcher.Constraint("Horizontal", 0))
sketch10.addConstraint(Sketcher.Constraint("Vertical", 2))
sketch10.addConstraint(Sketcher.Constraint("Horizontal", 4))
sketch10.addConstraint(Sketcher.Constraint("Vertical", 6))
sketch10.addConstraint(Sketcher.Constraint("Horizontal", 8))
sketch10.addConstraint(Sketcher.Constraint("Vertical", 10))
sketch10.addConstraint(Sketcher.Constraint("Horizontal", 12))
sketch10.addConstraint(Sketcher.Constraint("Vertical", 14))
sketch10.addConstraint(Sketcher.Constraint("Horizontal", 16))
sketch10.addConstraint(Sketcher.Constraint("Vertical", 18))
sketch10.addConstraint(Sketcher.Constraint("Horizontal", 20))
sketch10.addConstraint(Sketcher.Constraint("Vertical", 22))
sketch10.addConstraint(Sketcher.Constraint("Horizontal", 24))
sketch10.addConstraint(Sketcher.Constraint("Vertical", 26))
sketch10.addConstraint(Sketcher.Constraint("Horizontal", 28))
sketch10.addConstraint(Sketcher.Constraint("Vertical", 30))
sketch10.addConstraint(Sketcher.Constraint("Horizontal", 32))
sketch10.addConstraint(Sketcher.Constraint("Vertical", 34))
sketch10.addConstraint(Sketcher.Constraint("Horizontal", 36))
sketch10.addConstraint(Sketcher.Constraint("Vertical", 38))
sketch10.addConstraint(Sketcher.Constraint("Horizontal", 40))
sketch10.addConstraint(Sketcher.Constraint("Vertical", 42))
sketch10.addConstraint(Sketcher.Constraint("Horizontal", 44))
sketch10.addConstraint(Sketcher.Constraint("Vertical", 46))
sketch10.addConstraint(Sketcher.Constraint("Equal", 1, 3))
sketch10.addConstraint(Sketcher.Constraint("Equal", 3, 5))
sketch10.addConstraint(Sketcher.Constraint("Equal", 5, 7))
sketch10.addConstraint(Sketcher.Constraint("Equal", 7, 9))
sketch10.addConstraint(Sketcher.Constraint("Equal", 9, 11))
sketch10.addConstraint(Sketcher.Constraint("Equal", 11, 13))
sketch10.addConstraint(Sketcher.Constraint("Equal", 13, 15))
sketch10.addConstraint(Sketcher.Constraint("Equal", 15, 17))
sketch10.addConstraint(Sketcher.Constraint("Equal", 17, 19))
sketch10.addConstraint(Sketcher.Constraint("Equal", 19, 21))
sketch10.addConstraint(Sketcher.Constraint("Equal", 21, 23))
sketch10.addConstraint(Sketcher.Constraint("Equal", 23, 25))
sketch10.addConstraint(Sketcher.Constraint("Equal", 25, 27))
sketch10.addConstraint(Sketcher.Constraint("Equal", 27, 29))
sketch10.addConstraint(Sketcher.Constraint("Equal", 29, 31))
sketch10.addConstraint(Sketcher.Constraint("Equal", 31, 33))
sketch10.addConstraint(Sketcher.Constraint("Equal", 33, 35))
sketch10.addConstraint(Sketcher.Constraint("Equal", 35, 37))
sketch10.addConstraint(Sketcher.Constraint("Equal", 37, 39))
sketch10.addConstraint(Sketcher.Constraint("Equal", 39, 41))
sketch10.addConstraint(Sketcher.Constraint("Equal", 41, 43))
sketch10.addConstraint(Sketcher.Constraint("Equal", 43, 45))
sketch10.addConstraint(Sketcher.Constraint("Equal", 45, 47))
sketch10.addConstraint(Sketcher.Constraint("Horizontal", 7, 3, 9, 3))
sketch10.addConstraint(Sketcher.Constraint("Horizontal", 5, 3, 11, 3))
sketch10.addConstraint(Sketcher.Constraint("Horizontal", 15, 3, 17, 3))
sketch10.addConstraint(Sketcher.Constraint("Horizontal", 13, 3, 19, 3))
sketch10.addConstraint(Sketcher.Constraint("Horizontal", 23, 3, 25, 3))
sketch10.addConstraint(Sketcher.Constraint("Horizontal", 21, 3, 27, 3))
sketch10.addConstraint(Sketcher.Constraint("Horizontal", 31, 3, 33, 3))
sketch10.addConstraint(Sketcher.Constraint("Horizontal", 29, 3, 35, 3))
sketch10.addConstraint(Sketcher.Constraint("Horizontal", 39, 3, 41, 3))
sketch10.addConstraint(Sketcher.Constraint("Horizontal", 37, 3, 43, 3))
sketch10.addConstraint(Sketcher.Constraint("Equal", 4, 8))
sketch10.addConstraint(Sketcher.Constraint("Equal", 12, 16))
sketch10.addConstraint(Sketcher.Constraint("Equal", 20, 24))
sketch10.addConstraint(Sketcher.Constraint("Equal", 28, 32))
sketch10.addConstraint(Sketcher.Constraint("Equal", 36, 40))
sketch10.addConstraint(Sketcher.Constraint("Equal", 44, 2))
sketch10.addConstraint(Sketcher.Constraint("Radius", 1, Q("5 mm")))
sketch10.addConstraint(Sketcher.Constraint("DistanceX", 0, 1, 0, 2, Q("40 mm")))
sketch10.addConstraint(Sketcher.Constraint("DistanceX", -1, 1, 1, 3, Q("6045 mm")))
sketch10.addConstraint(Sketcher.Constraint("DistanceY", 1, 3, -1, 1, Q("4995 mm")))
sketch10.addConstraint(Sketcher.Constraint("DistanceX", -1, 1, 9, 3, Q("5745 mm")))
sketch10.addConstraint(Sketcher.Constraint("DistanceX", -1, 1, 17, 3, Q("5445 mm")))
sketch10.addConstraint(Sketcher.Constraint("DistanceX", -1, 1, 25, 3, Q("5145 mm")))
sketch10.addConstraint(Sketcher.Constraint("DistanceX", -1, 1, 33, 3, Q("4845 mm")))
sketch10.addConstraint(Sketcher.Constraint("DistanceX", -1, 1, 41, 3, Q("4545 mm")))
pad6 = doc.addObject("PartDesign::Pad", "Pad005")
body.addObject(pad6)
pad6.Profile = sketch10
pad6.Length = 2320

# Sketch on XZ plane
sketch11 = doc.addObject("Sketcher::SketchObject", "Sketch010")
body.addObject(sketch11)
sketch11.AttachmentSupport = (doc.XZ_Plane, [""])
sketch11.MapMode = "FlatFace"
sketch11.AttachmentOffset = App.Placement(V(0, 0, 3760), App.Rotation())
add_polygon(sketch11, [(10600, 2570), (9400, 2570), (10400, 2350), (10600, 2350)])  # lines 0-3
sketch11.addConstraint(Sketcher.Constraint("Horizontal", 0))
sketch11.addConstraint(Sketcher.Constraint("Horizontal", 2))
sketch11.addConstraint(Sketcher.Constraint("Vertical", 3))
sketch11.addConstraint(Sketcher.Constraint("DistanceX", 0, 2, 0, 1, Q("1200 mm")))
sketch11.addConstraint(Sketcher.Constraint("DistanceX", 2, 1, 2, 2, Q("200 mm")))
sketch11.addConstraint(Sketcher.Constraint("DistanceY", 3, 1, 3, 2, Q("220 mm")))
sketch11.addConstraint(Sketcher.Constraint("DistanceX", -1, 1, 0, 2, Q("9400 mm")))
sketch11.addConstraint(Sketcher.Constraint("DistanceY", -1, 1, 0, 2, Q("2570 mm")))
pocket5 = doc.addObject("PartDesign::Pocket", "Pocket004")
body.addObject(pocket5)
pocket5.Profile = sketch11
pocket5.Type = "ThroughAll"

doc.recompute()
